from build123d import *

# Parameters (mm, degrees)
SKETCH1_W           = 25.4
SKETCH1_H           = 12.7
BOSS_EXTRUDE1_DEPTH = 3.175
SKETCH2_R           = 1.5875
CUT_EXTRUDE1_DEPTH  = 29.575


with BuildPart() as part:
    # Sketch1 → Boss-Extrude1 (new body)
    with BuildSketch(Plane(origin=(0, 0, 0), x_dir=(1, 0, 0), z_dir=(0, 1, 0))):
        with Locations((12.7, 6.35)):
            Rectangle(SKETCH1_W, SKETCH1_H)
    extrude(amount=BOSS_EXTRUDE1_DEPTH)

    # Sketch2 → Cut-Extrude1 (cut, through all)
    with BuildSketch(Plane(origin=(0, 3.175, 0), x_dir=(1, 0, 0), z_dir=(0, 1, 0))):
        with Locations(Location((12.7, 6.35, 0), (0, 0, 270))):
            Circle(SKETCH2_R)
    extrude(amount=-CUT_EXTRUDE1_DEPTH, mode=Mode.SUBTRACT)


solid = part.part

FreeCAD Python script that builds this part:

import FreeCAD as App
import Part
import Sketcher
from FreeCAD import Vector
Q = App.Units.Quantity


def add_polygon(sketch, points):
    """Adds a closed chain of lines whose ends are joined by coincident constraints."""
    first, n = sketch.GeometryCount, len(points)
    for a, b in zip(points, points[1:] + points[:1]):
        sketch.addGeometry(Part.LineSegment(App.Vector(*a, 0), App.Vector(*b, 0)), False)
    for i in range(n):
        sketch.addConstraint(Sketcher.Constraint("Coincident", first + i, 2, first + (i + 1) % n, 1))

doc = App.newDocument("Part")
body = doc.addObject("PartDesign::Body", "Body")

# Sketch on XZ plane
sketch1 = body.newObject("Sketcher::SketchObject", "Sketch")
sketch1.AttachmentSupport = (doc.getObject("XZ_Plane"), [""])
sketch1.MapMode = "FlatFace"
add_polygon(sketch1, [(0, -13), (0, 0), (25, 0), (25, -13)])  # lines 0-3
sketch1.addConstraint(Sketcher.Constraint("Vertical", 0))
sketch1.addConstraint(Sketcher.Constraint("Horizontal", 1))
sketch1.addConstraint(Sketcher.Constraint("Vertical", 2))
sketch1.addConstraint(Sketcher.Constraint("Horizontal", 3))
sketch1.addConstraint(Sketcher.Constraint("Coincident", 0, 2, -1, 1))
sketch1.addConstraint(Sketcher.Constraint("DistanceX", 1, 1, 1, 2, Q("1 in")))
sketch1.addConstraint(Sketcher.Constraint("DistanceY", 0, 1, 0, 2, Q("0.5 in")))
pad1 = body.newObject("PartDesign::Pad", "Pad")
pad1.Profile = sketch1
pad1.Length = Q("0.125 in")
pad1.Reversed = True

# Sketch on XZ plane
sketch2 = body.newObject("Sketcher::SketchObject", "Sketch001")
sketch2.AttachmentSupport = (doc.getObject("XZ_Plane"), [""])
sketch2.MapMode = "FlatFace"
sketch2.AttachmentOffset = App.Placement(Vector(0, 0, -0.125 * 25.4), App.Rotation())
sketch2.addGeometry(Part.Circle(Vector(12.7, -6.3, 0), Vector(0, 0, 1), 1.6), False)
sketch2.addConstraint(Sketcher.Constraint("Diameter", 0, Q("0.125 in")))
sketch2.addConstraint(Sketcher.Constraint("DistanceX", -1, 1, 0, 3, Q("0.5 in")))
sketch2.addConstraint(Sketcher.Constraint("DistanceY", 0, 3, -1, 1, Q("0.25 in")))
pocket1 = body.newObject("PartDesign::Pocket", "Pocket")
pocket1.Profile = sketch2
pocket1.Type = "ThroughAll"
pocket1.Reversed = True

doc.recompute()
